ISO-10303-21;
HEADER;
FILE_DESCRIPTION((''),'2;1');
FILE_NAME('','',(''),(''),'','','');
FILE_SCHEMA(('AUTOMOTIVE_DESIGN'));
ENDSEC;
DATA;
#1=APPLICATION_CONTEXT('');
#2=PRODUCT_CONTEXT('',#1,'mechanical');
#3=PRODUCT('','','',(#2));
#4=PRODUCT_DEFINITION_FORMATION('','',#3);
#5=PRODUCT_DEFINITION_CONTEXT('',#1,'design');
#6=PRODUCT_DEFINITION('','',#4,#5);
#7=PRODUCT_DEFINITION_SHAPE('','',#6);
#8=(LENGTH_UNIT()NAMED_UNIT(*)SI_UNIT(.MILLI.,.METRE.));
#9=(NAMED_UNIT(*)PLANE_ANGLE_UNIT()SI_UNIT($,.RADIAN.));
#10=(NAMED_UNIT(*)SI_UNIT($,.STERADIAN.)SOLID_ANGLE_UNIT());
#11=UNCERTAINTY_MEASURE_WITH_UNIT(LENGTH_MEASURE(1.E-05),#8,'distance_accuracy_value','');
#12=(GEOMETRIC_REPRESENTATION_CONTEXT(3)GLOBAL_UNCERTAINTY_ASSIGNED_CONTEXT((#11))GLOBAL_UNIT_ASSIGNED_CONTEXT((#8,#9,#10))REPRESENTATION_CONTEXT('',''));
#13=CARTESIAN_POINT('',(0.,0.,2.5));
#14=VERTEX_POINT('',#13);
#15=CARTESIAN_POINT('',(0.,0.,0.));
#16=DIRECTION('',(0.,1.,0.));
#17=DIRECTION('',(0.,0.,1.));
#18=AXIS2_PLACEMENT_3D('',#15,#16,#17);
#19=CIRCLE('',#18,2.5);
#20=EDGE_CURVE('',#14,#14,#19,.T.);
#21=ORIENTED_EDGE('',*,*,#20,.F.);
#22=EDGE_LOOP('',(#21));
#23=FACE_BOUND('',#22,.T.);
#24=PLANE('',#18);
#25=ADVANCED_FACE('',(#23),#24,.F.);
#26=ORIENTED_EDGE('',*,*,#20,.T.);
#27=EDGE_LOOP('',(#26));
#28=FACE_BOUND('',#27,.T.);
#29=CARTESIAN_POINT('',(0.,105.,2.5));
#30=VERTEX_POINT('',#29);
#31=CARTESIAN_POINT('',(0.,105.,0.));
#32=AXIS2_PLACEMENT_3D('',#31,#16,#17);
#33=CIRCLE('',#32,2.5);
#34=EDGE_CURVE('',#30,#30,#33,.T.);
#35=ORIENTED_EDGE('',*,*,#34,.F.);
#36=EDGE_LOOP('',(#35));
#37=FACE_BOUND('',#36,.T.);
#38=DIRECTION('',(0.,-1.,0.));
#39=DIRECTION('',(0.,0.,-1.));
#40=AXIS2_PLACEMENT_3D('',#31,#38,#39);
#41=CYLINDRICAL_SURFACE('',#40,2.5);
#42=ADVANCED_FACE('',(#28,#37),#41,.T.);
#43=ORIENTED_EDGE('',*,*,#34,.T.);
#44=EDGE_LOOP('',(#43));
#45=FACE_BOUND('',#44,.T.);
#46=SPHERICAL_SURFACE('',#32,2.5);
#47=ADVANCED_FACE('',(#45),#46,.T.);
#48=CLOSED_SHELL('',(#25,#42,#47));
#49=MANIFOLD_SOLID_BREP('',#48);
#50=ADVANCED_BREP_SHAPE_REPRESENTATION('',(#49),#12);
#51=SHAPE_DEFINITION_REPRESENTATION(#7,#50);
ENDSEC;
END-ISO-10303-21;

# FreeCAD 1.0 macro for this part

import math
import FreeCAD as App
import Part
import Sketcher
Q = App.Units.Quantity

doc = App.newDocument("Part")
body = doc.addObject("PartDesign::Body", "Body")

# Sketch on XZ plane
sketch1 = doc.addObject("Sketcher::SketchObject", "Sketch")
body.addObject(sketch1)
sketch1.AttachmentSupport = (doc.XZ_Plane, [""])
sketch1.MapMode = "FlatFace"
sketch1.addGeometry(Part.Circle(App.Vector(0, 0, 0), App.Vector(0, 0, 1), 2.5), False)
sketch1.addConstraint([
    Sketcher.Constraint("Coincident", 0, 3, -1, 1),
    Sketcher.Constraint("Diameter", 0, Q("5 mm")),
])
pad1 = doc.addObject("PartDesign::Pad", "Pad")
body.addObject(pad1)
pad1.Profile = sketch1
pad1.Length = 105
pad1.Reversed = True

# Sketch on YZ plane
sketch2 = doc.addObject("Sketcher::SketchObject", "Sketch001")
body.addObject(sketch2)
sketch2.AttachmentSupport = (doc.YZ_Plane, [""])
sketch2.MapMode = "FlatFace"
sketch2.addGeometry([
    Part.LineSegment(App.Vector(105, 2.5, 0), App.Vector(105, -2.5, 0)),
    Part.ArcOfCircle(Part.Circle(App.Vector(105, 0, 0), App.Vector(0, 0, 1), 2.5), math.radians(-90), math.radians(90)),
], False)
sketch2.addGeometry(Part.LineSegment(App.Vector(105, 2.5, 0), App.Vector(105, -2.5, 0)), True)  # axis
sketch2.addConstraint([
    Sketcher.Constraint("Coincident", 0, 1, 1, 2),
    Sketcher.Constraint("Coincident", 1, 1, 0, 2),
    Sketcher.Constraint("Vertical", 0),
    Sketcher.Constraint("Vertical", 2),
    Sketcher.Constraint("Coincident", 2, 1, 0, 1),
    Sketcher.Constraint("PointOnObject", 1, 3, -1),
    Sketcher.Constraint("Vertical", 1, 3, 0, 1),
    Sketcher.Constraint("Equal", 0, 2),
    Sketcher.Constraint("Radius", 1, Q("2.5 mm")),
    Sketcher.Constraint("DistanceX", -1, 1, 1, 3, Q("105 mm")),
])
revolution = doc.addObject("PartDesign::Revolution", "Revolution")
body.addObject(revolution)
revolution.Profile = sketch2
revolution.ReferenceAxis = (sketch2, ["Axis0"])
revolution.Angle = 360

doc.recompute()
